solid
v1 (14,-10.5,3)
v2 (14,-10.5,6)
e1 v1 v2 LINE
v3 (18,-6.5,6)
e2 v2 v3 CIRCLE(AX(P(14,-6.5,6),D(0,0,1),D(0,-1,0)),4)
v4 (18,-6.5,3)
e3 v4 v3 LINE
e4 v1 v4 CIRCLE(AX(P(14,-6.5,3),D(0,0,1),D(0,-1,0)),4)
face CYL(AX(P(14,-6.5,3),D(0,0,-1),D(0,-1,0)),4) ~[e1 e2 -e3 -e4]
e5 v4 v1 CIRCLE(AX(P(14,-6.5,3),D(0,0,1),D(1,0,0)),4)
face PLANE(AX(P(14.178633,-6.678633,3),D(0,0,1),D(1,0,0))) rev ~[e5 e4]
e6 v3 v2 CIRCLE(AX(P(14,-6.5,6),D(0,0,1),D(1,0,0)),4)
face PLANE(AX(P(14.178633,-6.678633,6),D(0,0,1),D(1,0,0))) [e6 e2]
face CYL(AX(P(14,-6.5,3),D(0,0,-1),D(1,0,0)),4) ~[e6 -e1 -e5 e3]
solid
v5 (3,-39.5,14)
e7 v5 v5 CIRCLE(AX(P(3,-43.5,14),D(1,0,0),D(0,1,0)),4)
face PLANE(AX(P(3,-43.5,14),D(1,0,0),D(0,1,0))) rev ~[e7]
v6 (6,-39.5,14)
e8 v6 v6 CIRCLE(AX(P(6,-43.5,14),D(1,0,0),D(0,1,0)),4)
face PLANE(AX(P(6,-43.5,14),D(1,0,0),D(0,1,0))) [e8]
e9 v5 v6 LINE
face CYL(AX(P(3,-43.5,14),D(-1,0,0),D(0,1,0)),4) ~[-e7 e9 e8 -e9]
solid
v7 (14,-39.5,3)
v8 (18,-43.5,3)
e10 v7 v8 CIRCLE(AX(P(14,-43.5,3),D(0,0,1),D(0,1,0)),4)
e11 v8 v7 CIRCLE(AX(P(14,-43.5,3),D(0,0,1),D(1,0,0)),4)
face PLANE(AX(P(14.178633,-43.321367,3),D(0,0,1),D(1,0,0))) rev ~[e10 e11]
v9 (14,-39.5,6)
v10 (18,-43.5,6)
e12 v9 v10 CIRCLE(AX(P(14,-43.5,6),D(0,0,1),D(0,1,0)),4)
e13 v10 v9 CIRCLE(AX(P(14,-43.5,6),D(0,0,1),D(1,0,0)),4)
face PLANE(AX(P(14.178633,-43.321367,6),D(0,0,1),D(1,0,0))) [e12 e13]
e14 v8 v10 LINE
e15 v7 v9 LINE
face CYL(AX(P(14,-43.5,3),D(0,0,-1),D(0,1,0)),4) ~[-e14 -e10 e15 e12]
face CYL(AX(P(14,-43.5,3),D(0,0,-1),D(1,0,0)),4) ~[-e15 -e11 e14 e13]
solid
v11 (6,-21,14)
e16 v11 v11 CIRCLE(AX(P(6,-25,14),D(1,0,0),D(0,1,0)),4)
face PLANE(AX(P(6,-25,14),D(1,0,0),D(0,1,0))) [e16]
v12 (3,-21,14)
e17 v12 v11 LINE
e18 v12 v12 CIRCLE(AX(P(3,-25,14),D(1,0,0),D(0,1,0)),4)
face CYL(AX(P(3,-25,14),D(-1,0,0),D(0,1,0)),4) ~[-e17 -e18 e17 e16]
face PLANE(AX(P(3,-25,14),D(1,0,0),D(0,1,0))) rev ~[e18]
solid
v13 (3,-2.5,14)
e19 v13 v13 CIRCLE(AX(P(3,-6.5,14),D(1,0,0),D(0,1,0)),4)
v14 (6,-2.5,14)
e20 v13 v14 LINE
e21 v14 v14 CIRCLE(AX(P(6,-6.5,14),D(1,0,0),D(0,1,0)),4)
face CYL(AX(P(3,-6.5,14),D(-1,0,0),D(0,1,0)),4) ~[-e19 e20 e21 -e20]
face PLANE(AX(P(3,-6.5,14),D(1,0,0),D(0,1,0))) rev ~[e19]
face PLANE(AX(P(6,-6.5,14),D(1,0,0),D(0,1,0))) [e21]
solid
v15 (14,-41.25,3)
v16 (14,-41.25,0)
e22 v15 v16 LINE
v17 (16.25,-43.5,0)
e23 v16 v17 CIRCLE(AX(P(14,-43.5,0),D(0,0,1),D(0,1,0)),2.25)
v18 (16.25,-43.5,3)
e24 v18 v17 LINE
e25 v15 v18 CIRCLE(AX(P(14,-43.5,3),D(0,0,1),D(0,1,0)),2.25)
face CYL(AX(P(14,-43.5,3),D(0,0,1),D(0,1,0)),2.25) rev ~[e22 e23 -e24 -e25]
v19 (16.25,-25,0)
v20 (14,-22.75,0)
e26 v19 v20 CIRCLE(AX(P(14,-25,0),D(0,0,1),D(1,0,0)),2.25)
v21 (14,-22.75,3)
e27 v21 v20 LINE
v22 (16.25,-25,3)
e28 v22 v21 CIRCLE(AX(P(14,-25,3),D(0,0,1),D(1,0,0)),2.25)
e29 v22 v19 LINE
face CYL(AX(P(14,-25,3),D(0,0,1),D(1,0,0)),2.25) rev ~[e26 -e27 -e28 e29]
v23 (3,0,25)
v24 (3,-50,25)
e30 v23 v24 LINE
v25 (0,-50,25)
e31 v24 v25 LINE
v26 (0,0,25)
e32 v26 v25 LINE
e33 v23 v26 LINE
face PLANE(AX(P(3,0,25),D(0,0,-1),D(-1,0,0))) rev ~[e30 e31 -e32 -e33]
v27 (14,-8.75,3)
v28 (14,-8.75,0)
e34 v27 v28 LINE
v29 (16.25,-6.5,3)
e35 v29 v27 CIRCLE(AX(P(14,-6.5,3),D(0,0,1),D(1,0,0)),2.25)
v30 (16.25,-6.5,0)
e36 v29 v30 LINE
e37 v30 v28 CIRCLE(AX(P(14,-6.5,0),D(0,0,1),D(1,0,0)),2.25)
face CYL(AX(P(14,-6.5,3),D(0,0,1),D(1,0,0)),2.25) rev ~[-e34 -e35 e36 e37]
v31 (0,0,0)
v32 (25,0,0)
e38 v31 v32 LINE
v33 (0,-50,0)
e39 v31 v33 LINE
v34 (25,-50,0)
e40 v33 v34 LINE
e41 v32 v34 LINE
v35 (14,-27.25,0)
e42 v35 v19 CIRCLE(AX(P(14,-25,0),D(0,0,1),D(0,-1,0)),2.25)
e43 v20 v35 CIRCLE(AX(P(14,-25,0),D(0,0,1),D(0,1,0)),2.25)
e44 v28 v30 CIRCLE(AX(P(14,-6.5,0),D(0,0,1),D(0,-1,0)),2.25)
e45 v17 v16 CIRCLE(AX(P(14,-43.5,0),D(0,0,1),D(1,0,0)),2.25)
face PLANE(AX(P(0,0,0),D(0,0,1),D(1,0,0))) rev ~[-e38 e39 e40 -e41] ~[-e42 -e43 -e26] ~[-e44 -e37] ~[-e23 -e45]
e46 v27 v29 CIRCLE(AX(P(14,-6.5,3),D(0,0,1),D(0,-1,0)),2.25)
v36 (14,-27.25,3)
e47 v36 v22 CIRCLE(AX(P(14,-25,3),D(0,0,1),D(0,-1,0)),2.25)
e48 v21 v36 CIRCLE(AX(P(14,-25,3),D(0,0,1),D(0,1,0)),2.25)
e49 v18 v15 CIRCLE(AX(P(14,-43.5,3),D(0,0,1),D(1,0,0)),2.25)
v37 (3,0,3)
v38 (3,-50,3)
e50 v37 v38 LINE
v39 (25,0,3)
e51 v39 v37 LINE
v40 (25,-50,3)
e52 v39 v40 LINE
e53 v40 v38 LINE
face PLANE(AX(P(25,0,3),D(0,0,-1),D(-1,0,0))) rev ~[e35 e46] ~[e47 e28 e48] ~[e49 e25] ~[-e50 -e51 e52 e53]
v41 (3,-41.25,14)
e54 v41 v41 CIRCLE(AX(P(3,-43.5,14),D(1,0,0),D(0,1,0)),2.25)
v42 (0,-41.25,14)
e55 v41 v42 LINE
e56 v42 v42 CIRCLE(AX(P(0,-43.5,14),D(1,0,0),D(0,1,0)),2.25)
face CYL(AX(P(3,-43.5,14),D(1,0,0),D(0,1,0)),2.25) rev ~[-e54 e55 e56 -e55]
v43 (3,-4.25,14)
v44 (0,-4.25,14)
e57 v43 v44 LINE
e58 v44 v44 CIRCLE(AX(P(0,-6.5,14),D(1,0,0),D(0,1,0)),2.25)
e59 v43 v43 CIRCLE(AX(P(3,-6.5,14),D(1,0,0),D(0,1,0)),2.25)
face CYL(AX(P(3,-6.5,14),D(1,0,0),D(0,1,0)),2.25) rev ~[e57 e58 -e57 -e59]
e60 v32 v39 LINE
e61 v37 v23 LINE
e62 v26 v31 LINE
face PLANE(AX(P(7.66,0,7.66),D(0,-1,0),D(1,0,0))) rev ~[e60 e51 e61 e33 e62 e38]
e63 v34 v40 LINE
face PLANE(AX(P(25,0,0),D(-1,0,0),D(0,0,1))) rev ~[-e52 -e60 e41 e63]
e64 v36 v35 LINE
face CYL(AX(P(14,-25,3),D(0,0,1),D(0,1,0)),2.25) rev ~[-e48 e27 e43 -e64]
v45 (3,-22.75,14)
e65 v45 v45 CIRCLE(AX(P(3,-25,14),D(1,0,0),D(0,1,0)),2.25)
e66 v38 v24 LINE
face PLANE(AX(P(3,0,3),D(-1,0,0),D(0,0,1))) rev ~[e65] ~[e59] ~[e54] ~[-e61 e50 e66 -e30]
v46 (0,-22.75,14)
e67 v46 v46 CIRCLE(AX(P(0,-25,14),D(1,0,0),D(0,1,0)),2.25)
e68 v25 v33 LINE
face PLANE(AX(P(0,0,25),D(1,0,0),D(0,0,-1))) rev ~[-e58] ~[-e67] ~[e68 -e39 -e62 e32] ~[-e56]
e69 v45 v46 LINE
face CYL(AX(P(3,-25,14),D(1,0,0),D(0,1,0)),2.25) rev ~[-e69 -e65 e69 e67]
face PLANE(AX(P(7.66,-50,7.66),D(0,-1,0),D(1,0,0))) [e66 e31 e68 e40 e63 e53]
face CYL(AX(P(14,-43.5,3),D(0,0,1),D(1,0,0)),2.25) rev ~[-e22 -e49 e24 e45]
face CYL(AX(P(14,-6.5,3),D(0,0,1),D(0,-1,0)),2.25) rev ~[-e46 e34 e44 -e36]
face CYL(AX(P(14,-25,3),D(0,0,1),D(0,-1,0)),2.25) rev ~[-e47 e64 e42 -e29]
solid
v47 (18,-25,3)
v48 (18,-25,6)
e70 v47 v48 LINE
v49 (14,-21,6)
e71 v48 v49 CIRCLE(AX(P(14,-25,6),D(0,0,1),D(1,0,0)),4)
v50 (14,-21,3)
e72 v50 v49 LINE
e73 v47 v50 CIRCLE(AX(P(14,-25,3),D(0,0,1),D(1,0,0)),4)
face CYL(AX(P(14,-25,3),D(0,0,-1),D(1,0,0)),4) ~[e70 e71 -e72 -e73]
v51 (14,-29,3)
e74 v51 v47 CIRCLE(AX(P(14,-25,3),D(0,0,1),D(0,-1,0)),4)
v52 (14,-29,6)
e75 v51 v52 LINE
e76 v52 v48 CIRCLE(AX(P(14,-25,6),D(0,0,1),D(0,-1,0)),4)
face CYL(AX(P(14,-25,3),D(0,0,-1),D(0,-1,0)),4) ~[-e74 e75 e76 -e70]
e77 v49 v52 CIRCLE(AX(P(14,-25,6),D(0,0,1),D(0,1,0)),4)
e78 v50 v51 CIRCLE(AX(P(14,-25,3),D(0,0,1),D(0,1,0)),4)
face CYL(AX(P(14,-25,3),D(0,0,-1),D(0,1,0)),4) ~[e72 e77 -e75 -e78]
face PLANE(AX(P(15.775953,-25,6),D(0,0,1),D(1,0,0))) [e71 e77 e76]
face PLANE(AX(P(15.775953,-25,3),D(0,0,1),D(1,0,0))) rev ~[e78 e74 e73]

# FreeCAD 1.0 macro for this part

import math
import FreeCAD as App
import Part
import Sketcher

V = App.Vector
Q = App.Units.Quantity

doc = App.newDocument("Part")
params = doc.addObject("Spreadsheet::Sheet", "Params")
for row, (alias, value) in enumerate([
    ("sketch1_width", "25 mm"),
    ("sketch1_width2", "22 mm"),
    ("pad1_length", "50 mm"),
    ("sketch2_diameter", "4.5 mm"),
    ("sketch3_radius", "2.25 mm"),
    ("sketch4_radius", "4 mm"),
    ("pad2_length", "3 mm"),
    ("sketch5_radius", "4 mm"),
    ("pad3_length", "3 mm"),
    ("sketch6_radius", "4 mm"),
    ("pad4_length", "3 mm"),
    ("sketch7_diameter", "8 mm"),
    ("pad5_length", "3 mm"),
    ("sketch8_diameter", "8 mm"),
    ("pad6_length", "3 mm"),
    ("sketch9_diameter", "8 mm"),
    ("pad7_length", "3 mm"),
], start=1):
    params.set(f"A{row}", alias)
    params.set(f"B{row}", "=" + value)
    params.setAlias(f"B{row}", alias)

body = doc.addObject("PartDesign::Body", "Body")

sketch1 = body.newObject("Sketcher::SketchObject", "Sketch")
sketch1.AttachmentSupport = (doc.getObject("XZ_Plane"), [""])
sketch1.MapMode = "FlatFace"
sketch1.addGeometry([
    Part.LineSegment(V(0, 25, 0), V(0, 0, 0)),
    Part.LineSegment(V(0, 0, 0), V(25, 0, 0)),
    Part.LineSegment(V(25, 0, 0), V(25, 3, 0)),
    Part.LineSegment(V(25, 3, 0), V(3, 3, 0)),
    Part.LineSegment(V(3, 3, 0), V(3, 25, 0)),
    Part.LineSegment(V(3, 25, 0), V(0, 25, 0)),
], False)
sketch1.addConstraint([
    Sketcher.Constraint("Coincident", 0, 2, 1, 1),
    Sketcher.Constraint("Coincident", 1, 2, 2, 1),
    Sketcher.Constraint("Coincident", 2, 2, 3, 1),
    Sketcher.Constraint("Coincident", 3, 2, 4, 1),
    Sketcher.Constraint("Coincident", 4, 2, 5, 1),
    Sketcher.Constraint("Coincident", 5, 2, 0, 1),
    Sketcher.Constraint("Vertical", 0),
    Sketcher.Constraint("Horizontal", 1),
    Sketcher.Constraint("Vertical", 2),
    Sketcher.Constraint("Horizontal", 3),
    Sketcher.Constraint("Vertical", 4),
    Sketcher.Constraint("Horizontal", 5),
    Sketcher.Constraint("Coincident", 0, 2, -1, 1),
    Sketcher.Constraint("Equal", 1, 0),
    Sketcher.Constraint("Equal", 5, 2),
    Sketcher.Constraint("DistanceX", 1, 1, 1, 2, Q("25 mm")),
    Sketcher.Constraint("DistanceX", 3, 2, 3, 1, Q("22 mm")),
])
sketch1.setExpression("Constraints[15]", "Params.sketch1_width")
sketch1.setExpression("Constraints[16]", "Params.sketch1_width2")
pad1 = body.newObject("PartDesign::Pad", "Pad")
pad1.Profile = sketch1
pad1.setExpression("Length", "Params.pad1_length")

sketch2 = body.newObject("Sketcher::SketchObject", "Sketch001")
sketch2.AttachmentSupport = (doc.getObject("YZ_Plane"), [""])
sketch2.MapMode = "FlatFace"
sketch2.AttachmentOffset = App.Placement(V(0, 0, 3), App.Rotation())
sketch2.addGeometry([
    Part.Circle(V(-43.5, 14, 0), V(0, 0, 1), 2.25),
    Part.Circle(V(-6.5, 14, 0), V(0, 0, 1), 2.25),
    Part.Circle(V(-25, 14, 0), V(0, 0, 1), 2.25),
], False)
sketch2.addConstraint([
    Sketcher.Constraint("Equal", 0, 1),
    Sketcher.Constraint("Equal", 1, 2),
    Sketcher.Constraint("Horizontal", 0, 3, 1, 3),
    Sketcher.Constraint("Horizontal", 1, 3, 2, 3),
    Sketcher.Constraint("Diameter", 0, Q("4.5 mm")),
    Sketcher.Constraint("DistanceY", -1, 1, 0, 3, Q("14 mm")),
    Sketcher.Constraint("DistanceX", 2, 3, -1, 1, Q("25 mm")),
    Sketcher.Constraint("DistanceX", 0, 3, 1, 3, Q("37 mm")),
    Sketcher.Constraint("DistanceX", 0, 3, -1, 1, Q("43.5 mm")),
])
sketch2.setExpression("Constraints[4]", "Params.sketch2_diameter")
pocket1 = body.newObject("PartDesign::Pocket", "Pocket")
pocket1.Profile = sketch2
pocket1.Type = "ThroughAll"

sketch3 = body.newObject("Sketcher::SketchObject", "Sketch002")
sketch3.AttachmentSupport = (doc.getObject("XY_Plane"), [""])
sketch3.MapMode = "FlatFace"
sketch3.AttachmentOffset = App.Placement(V(0, 0, 3), App.Rotation())
sketch3.addGeometry([
    Part.ArcOfCircle(Part.Circle(V(14, -43.5, 0), V(0, 0, 1), 2.25), math.radians(0), math.radians(90)),
    Part.ArcOfCircle(Part.Circle(V(14, -43.5, 0), V(0, 0, 1), 2.25), math.radians(90), math.radians(360)),
    Part.ArcOfCircle(Part.Circle(V(14, -6.5, 0), V(0, 0, 1), 2.25), math.radians(0), math.radians(270)),
    Part.ArcOfCircle(Part.Circle(V(14, -6.5, 0), V(0, 0, 1), 2.25), math.radians(-90), math.radians(0)),
    Part.ArcOfCircle(Part.Circle(V(14, -25, 0), V(0, 0, 1), 2.25), math.radians(90), math.radians(270)),
    Part.ArcOfCircle(Part.Circle(V(14, -25, 0), V(0, 0, 1), 2.25), math.radians(-90), math.radians(0)),
    Part.ArcOfCircle(Part.Circle(V(14, -25, 0), V(0, 0, 1), 2.25), math.radians(0), math.radians(90)),
], False)
sketch3.addConstraint([
    Sketcher.Constraint("Tangent", 0, 1, 1, 2),
    Sketcher.Constraint("Coincident", 1, 1, 0, 2),
    Sketcher.Constraint("Tangent", 2, 1, 3, 2),
    Sketcher.Constraint("Coincident", 3, 1, 2, 2),
    Sketcher.Constraint("Tangent", 4, 2, 5, 1),
    Sketcher.Constraint("Tangent", 5, 2, 6, 1),
    Sketcher.Constraint("Tangent", 6, 2, 4, 1),
    Sketcher.Constraint("Equal", 1, 2),
    Sketcher.Constraint("Equal", 3, 4),
    Sketcher.Constraint("Horizontal", 1, 3, 0, 1),
    Sketcher.Constraint("Horizontal", 3, 3, 2, 1),
    Sketcher.Constraint("Horizontal", 6, 3, 5, 2),
    Sketcher.Constraint("Vertical", 1, 3, 2, 3),
    Sketcher.Constraint("Vertical", 3, 3, 4, 3),
    Sketcher.Constraint("Vertical", 6, 3, 1, 1),
    Sketcher.Constraint("Vertical", 1, 1, 3, 1),
    Sketcher.Constraint("Vertical", 3, 1, 4, 2),
    Sketcher.Constraint("Vertical", 4, 2, 6, 2),
    Sketcher.Constraint("Radius", 0, Q("2.25 mm")),
    Sketcher.Constraint("DistanceX", -1, 1, 0, 3, Q("14 mm")),
    Sketcher.Constraint("DistanceY", 4, 3, -1, 1, Q("25 mm")),
    Sketcher.Constraint("DistanceY", 0, 3, 2, 3, Q("37 mm")),
    Sketcher.Constraint("DistanceY", 1, 1, 4, 2, Q("14 mm")),
])
sketch3.setExpression("Constraints[18]", "Params.sketch3_radius")
pocket2 = body.newObject("PartDesign::Pocket", "Pocket001")
pocket2.Profile = sketch3
pocket2.Type = "ThroughAll"
body2 = doc.addObject("PartDesign::Body", "Body001")

sketch4 = body2.newObject("Sketcher::SketchObject", "Sketch003")
sketch4.AttachmentSupport = (doc.getObject("XY_Plane001"), [""])
sketch4.MapMode = "FlatFace"
sketch4.AttachmentOffset = App.Placement(V(0, 0, 3), App.Rotation())
sketch4.addGeometry([
    Part.ArcOfCircle(Part.Circle(V(14, -6.5, 0), V(0, 0, 1), 4), math.radians(0), math.radians(270)),
    Part.ArcOfCircle(Part.Circle(V(14, -6.5, 0), V(0, 0, 1), 4), math.radians(-90), math.radians(0)),
], False)
sketch4.addConstraint([
    Sketcher.Constraint("Tangent", 0, 1, 1, 2),
    Sketcher.Constraint("Coincident", 1, 1, 0, 2),
    Sketcher.Constraint("Horizontal", 1, 3, 0, 1),
    Sketcher.Constraint("Vertical", 0, 3, 1, 1),
    Sketcher.Constraint("Radius", 0, Q("4 mm")),
    Sketcher.Constraint("DistanceX", -1, 1, 0, 3, Q("14 mm")),
    Sketcher.Constraint("DistanceY", 0, 3, -1, 1, Q("6.5 mm")),
])
sketch4.setExpression("Constraints[4]", "Params.sketch4_radius")
pad2 = body2.newObject("PartDesign::Pad", "Pad001")
pad2.Profile = sketch4
pad2.setExpression("Length", "Params.pad2_length")
body3 = doc.addObject("PartDesign::Body", "Body002")

sketch5 = body3.newObject("Sketcher::SketchObject", "Sketch004")
sketch5.AttachmentSupport = (doc.getObject("XY_Plane002"), [""])
sketch5.MapMode = "FlatFace"
sketch5.AttachmentOffset = App.Placement(V(0, 0, 3), App.Rotation())
sketch5.addGeometry([
    Part.ArcOfCircle(Part.Circle(V(14, -25, 0), V(0, 0, 1), 4), math.radians(-90), math.radians(0)),
    Part.ArcOfCircle(Part.Circle(V(14, -25, 0), V(0, 0, 1), 4), math.radians(0), math.radians(90)),
    Part.ArcOfCircle(Part.Circle(V(14, -25, 0), V(0, 0, 1), 4), math.radians(90), math.radians(270)),
], False)
sketch5.addConstraint([
    Sketcher.Constraint("Tangent", 0, 2, 1, 1),
    Sketcher.Constraint("Tangent", 1, 2, 2, 1),
    Sketcher.Constraint("Tangent", 2, 2, 0, 1),
    Sketcher.Constraint("Horizontal", 2, 3, 0, 2),
    Sketcher.Constraint("Vertical", 2, 3, 1, 2),
    Sketcher.Constraint("Vertical", 1, 2, 2, 2),
    Sketcher.Constraint("Radius", 0, Q("4 mm")),
    Sketcher.Constraint("DistanceX", -1, 1, 0, 3, Q("14 mm")),
    Sketcher.Constraint("DistanceY", 0, 3, -1, 1, Q("25 mm")),
])
sketch5.setExpression("Constraints[6]", "Params.sketch5_radius")
pad3 = body3.newObject("PartDesign::Pad", "Pad002")
pad3.Profile = sketch5
pad3.setExpression("Length", "Params.pad3_length")
body4 = doc.addObject("PartDesign::Body", "Body003")

sketch6 = body4.newObject("Sketcher::SketchObject", "Sketch005")
sketch6.AttachmentSupport = (doc.getObject("XY_Plane003"), [""])
sketch6.MapMode = "FlatFace"
sketch6.AttachmentOffset = App.Placement(V(0, 0, 3), App.Rotation())
sketch6.addGeometry([
    Part.ArcOfCircle(Part.Circle(V(14, -43.5, 0), V(0, 0, 1), 4), math.radians(0), math.radians(90)),
    Part.ArcOfCircle(Part.Circle(V(14, -43.5, 0), V(0, 0, 1), 4), math.radians(90), math.radians(360)),
], False)
sketch6.addConstraint([
    Sketcher.Constraint("Tangent", 0, 1, 1, 2),
    Sketcher.Constraint("Coincident", 1, 1, 0, 2),
    Sketcher.Constraint("Horizontal", 1, 3, 0, 1),
    Sketcher.Constraint("Vertical", 0, 3, 1, 1),
    Sketcher.Constraint("Radius", 0, Q("4 mm")),
    Sketcher.Constraint("DistanceX", -1, 1, 0, 3, Q("14 mm")),
    Sketcher.Constraint("DistanceY", 0, 3, -1, 1, Q("43.5 mm")),
])
sketch6.setExpression("Constraints[4]", "Params.sketch6_radius")
pad4 = body4.newObject("PartDesign::Pad", "Pad003")
pad4.Profile = sketch6
pad4.setExpression("Length", "Params.pad4_length")
body5 = doc.addObject("PartDesign::Body", "Body004")

sketch7 = body5.newObject("Sketcher::SketchObject", "Sketch006")
sketch7.AttachmentSupport = (doc.getObject("YZ_Plane004"), [""])
sketch7.MapMode = "FlatFace"
sketch7.AttachmentOffset = App.Placement(V(0, 0, 3), App.Rotation())
sketch7.addGeometry(Part.Circle(V(-6.5, 14, 0), V(0, 0, 1), 4), False)
sketch7.addConstraint([
    Sketcher.Constraint("Diameter", 0, Q("8 mm")),
    Sketcher.Constraint("DistanceY", -1, 1, 0, 3, Q("14 mm")),
    Sketcher.Constraint("DistanceX", 0, 3, -1, 1, Q("6.5 mm")),
])
sketch7.setExpression("Constraints[0]", "Params.sketch7_diameter")
pad5 = body5.newObject("PartDesign::Pad", "Pad004")
pad5.Profile = sketch7
pad5.setExpression("Length", "Params.pad5_length")
body6 = doc.addObject("PartDesign::Body", "Body005")

sketch8 = body6.newObject("Sketcher::SketchObject", "Sketch007")
sketch8.AttachmentSupport = (doc.getObject("YZ_Plane005"), [""])
sketch8.MapMode = "FlatFace"
sketch8.AttachmentOffset = App.Placement(V(0, 0, 3), App.Rotation())
sketch8.addGeometry(Part.Circle(V(-25, 14, 0), V(0, 0, 1), 4), False)
sketch8.addConstraint([
    Sketcher.Constraint("Diameter", 0, Q("8 mm")),
    Sketcher.Constraint("DistanceX", 0, 3, -1, 1, Q("25 mm")),
    Sketcher.Constraint("DistanceY", -1, 1, 0, 3, Q("14 mm")),
])
sketch8.setExpression("Constraints[0]", "Params.sketch8_diameter")
pad6 = body6.newObject("PartDesign::Pad", "Pad005")
pad6.Profile = sketch8
pad6.setExpression("Length", "Params.pad6_length")
body7 = doc.addObject("PartDesign::Body", "Body006")

sketch9 = body7.newObject("Sketcher::SketchObject", "Sketch008")
sketch9.AttachmentSupport = (doc.getObject("YZ_Plane006"), [""])
sketch9.MapMode = "FlatFace"
sketch9.AttachmentOffset = App.Placement(V(0, 0, 3), App.Rotation())
sketch9.addGeometry(Part.Circle(V(-43.5, 14, 0), V(0, 0, 1), 4), False)
sketch9.addConstraint([
    Sketcher.Constraint("Diameter", 0, Q("8 mm")),
    Sketcher.Constraint("DistanceY", -1, 1, 0, 3, Q("14 mm")),
    Sketcher.Constraint("DistanceX", 0, 3, -1, 1, Q("43.5 mm")),
])
sketch9.setExpression("Constraints[0]", "Params.sketch9_diameter")
pad7 = body7.newObject("PartDesign::Pad", "Pad006")
pad7.Profile = sketch9
pad7.setExpression("Length", "Params.pad7_length")

doc.recompute()
